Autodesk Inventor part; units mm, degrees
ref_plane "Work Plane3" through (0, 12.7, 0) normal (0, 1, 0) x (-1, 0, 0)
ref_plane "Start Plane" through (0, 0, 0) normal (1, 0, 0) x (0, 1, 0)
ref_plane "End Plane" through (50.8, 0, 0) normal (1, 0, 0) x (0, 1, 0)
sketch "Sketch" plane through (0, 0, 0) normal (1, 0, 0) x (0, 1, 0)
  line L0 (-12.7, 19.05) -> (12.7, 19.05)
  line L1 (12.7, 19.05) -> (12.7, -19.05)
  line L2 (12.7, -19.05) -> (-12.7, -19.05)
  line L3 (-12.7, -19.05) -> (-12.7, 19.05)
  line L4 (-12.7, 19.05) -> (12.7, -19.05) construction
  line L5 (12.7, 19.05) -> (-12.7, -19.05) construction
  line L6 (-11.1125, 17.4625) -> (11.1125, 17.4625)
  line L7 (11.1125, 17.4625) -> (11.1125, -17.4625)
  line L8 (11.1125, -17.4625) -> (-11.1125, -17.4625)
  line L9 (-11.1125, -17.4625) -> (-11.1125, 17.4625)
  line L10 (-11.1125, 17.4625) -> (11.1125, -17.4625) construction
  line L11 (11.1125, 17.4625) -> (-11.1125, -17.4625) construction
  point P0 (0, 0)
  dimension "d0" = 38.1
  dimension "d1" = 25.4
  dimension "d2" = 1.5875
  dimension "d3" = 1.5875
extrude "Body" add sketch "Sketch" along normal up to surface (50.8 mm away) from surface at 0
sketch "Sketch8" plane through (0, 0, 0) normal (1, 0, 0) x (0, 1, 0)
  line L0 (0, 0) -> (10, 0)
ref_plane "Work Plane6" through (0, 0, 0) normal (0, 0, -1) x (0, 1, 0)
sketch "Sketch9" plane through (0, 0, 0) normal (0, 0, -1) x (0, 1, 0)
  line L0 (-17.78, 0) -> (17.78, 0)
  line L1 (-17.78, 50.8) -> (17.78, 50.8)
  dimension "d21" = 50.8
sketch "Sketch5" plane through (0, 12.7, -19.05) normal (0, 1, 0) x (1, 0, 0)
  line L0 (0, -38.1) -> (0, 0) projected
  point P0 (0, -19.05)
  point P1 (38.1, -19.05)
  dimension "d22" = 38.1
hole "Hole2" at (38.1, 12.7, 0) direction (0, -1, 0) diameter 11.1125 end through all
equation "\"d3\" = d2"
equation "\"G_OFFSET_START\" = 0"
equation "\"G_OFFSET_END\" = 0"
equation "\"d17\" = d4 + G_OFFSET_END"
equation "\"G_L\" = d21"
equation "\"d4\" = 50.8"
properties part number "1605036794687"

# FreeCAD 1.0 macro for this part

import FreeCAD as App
import Part
import Sketcher

V = App.Vector
Q = App.Units.Quantity

doc = App.newDocument("Part")
body = doc.addObject("PartDesign::Body", "Body")

# Sketch on YZ plane
sketch1 = body.newObject("Sketcher::SketchObject", "Sketch")
sketch1.AttachmentSupport = (doc.getObject("YZ_Plane"), [""])
sketch1.MapMode = "FlatFace"
sketch1.addGeometry([
    Part.LineSegment(V(13, 19, 0), V(-13, 19, 0)),  # 0
    Part.LineSegment(V(-13, 19, 0), V(-13, -19, 0)),  # 1
    Part.LineSegment(V(-13, -19, 0), V(13, -19, 0)),  # 2
    Part.LineSegment(V(13, -19, 0), V(13, 19, 0)),  # 3
    Part.LineSegment(V(-11, -17, 0), V(-11, 17, 0)),  # 4
    Part.LineSegment(V(-11, 17, 0), V(11, 17, 0)),  # 5
    Part.LineSegment(V(11, 17, 0), V(11, -17, 0)),  # 6
    Part.LineSegment(V(11, -17, 0), V(-11, -17, 0)),  # 7
], False)
sketch1.addConstraint([
    Sketcher.Constraint("Coincident", 0, 2, 1, 1),
    Sketcher.Constraint("Coincident", 1, 2, 2, 1),
    Sketcher.Constraint("Coincident", 2, 2, 3, 1),
    Sketcher.Constraint("Coincident", 3, 2, 0, 1),
    Sketcher.Constraint("Coincident", 4, 2, 5, 1),
    Sketcher.Constraint("Coincident", 5, 2, 6, 1),
    Sketcher.Constraint("Coincident", 6, 2, 7, 1),
    Sketcher.Constraint("Coincident", 7, 2, 4, 1),
    Sketcher.Constraint("Horizontal", 0),
    Sketcher.Constraint("Vertical", 1),
    Sketcher.Constraint("Horizontal", 2),
    Sketcher.Constraint("Vertical", 3),
    Sketcher.Constraint("Vertical", 4),
    Sketcher.Constraint("Horizontal", 5),
    Sketcher.Constraint("Vertical", 6),
    Sketcher.Constraint("Horizontal", 7),
    Sketcher.Constraint("Symmetric", 0, 2, 2, 2, -1, 1),
    Sketcher.Constraint("Symmetric", 4, 2, 6, 2, -1, 1),
    Sketcher.Constraint("DistanceX", 0, 2, 0, 1, Q("1 in")),
    Sketcher.Constraint("DistanceY", 1, 2, 1, 1, Q("1.5 in")),
    Sketcher.Constraint("DistanceX", 0, 2, 4, 2, Q("0.0625 in")),
    Sketcher.Constraint("DistanceY", 4, 2, 0, 2, Q("0.0625 in")),
])
pad1 = body.newObject("PartDesign::Pad", "Pad")
pad1.Profile = sketch1
pad1.Length = Q("2 in")

# Sketch on XZ plane
sketch2 = body.newObject("Sketcher::SketchObject", "Sketch001")
sketch2.AttachmentSupport = (doc.getObject("XZ_Plane"), [""])
sketch2.MapMode = "FlatFace"
sketch2.AttachmentOffset = App.Placement(V(0, 0, -0.5 * 25.4), App.Rotation())
sketch2.addGeometry(Part.Circle(V(38, 0, 0), V(0, 0, 1), 6), False)
sketch2.addConstraint([
    Sketcher.Constraint("PointOnObject", 0, 3, -1),
    Sketcher.Constraint("Diameter", 0, Q("0.4375 in")),
    Sketcher.Constraint("DistanceX", -1, 1, 0, 3, Q("1.5 in")),
])
doc.recompute()
hole = body.newObject("PartDesign::Hole", "Hole")
hole.Profile = sketch2
hole.ThreadType = "None"
hole.Diameter = Q("0.4375 in")
hole.DepthType = "ThroughAll"
hole.Reversed = True

doc.recompute()
